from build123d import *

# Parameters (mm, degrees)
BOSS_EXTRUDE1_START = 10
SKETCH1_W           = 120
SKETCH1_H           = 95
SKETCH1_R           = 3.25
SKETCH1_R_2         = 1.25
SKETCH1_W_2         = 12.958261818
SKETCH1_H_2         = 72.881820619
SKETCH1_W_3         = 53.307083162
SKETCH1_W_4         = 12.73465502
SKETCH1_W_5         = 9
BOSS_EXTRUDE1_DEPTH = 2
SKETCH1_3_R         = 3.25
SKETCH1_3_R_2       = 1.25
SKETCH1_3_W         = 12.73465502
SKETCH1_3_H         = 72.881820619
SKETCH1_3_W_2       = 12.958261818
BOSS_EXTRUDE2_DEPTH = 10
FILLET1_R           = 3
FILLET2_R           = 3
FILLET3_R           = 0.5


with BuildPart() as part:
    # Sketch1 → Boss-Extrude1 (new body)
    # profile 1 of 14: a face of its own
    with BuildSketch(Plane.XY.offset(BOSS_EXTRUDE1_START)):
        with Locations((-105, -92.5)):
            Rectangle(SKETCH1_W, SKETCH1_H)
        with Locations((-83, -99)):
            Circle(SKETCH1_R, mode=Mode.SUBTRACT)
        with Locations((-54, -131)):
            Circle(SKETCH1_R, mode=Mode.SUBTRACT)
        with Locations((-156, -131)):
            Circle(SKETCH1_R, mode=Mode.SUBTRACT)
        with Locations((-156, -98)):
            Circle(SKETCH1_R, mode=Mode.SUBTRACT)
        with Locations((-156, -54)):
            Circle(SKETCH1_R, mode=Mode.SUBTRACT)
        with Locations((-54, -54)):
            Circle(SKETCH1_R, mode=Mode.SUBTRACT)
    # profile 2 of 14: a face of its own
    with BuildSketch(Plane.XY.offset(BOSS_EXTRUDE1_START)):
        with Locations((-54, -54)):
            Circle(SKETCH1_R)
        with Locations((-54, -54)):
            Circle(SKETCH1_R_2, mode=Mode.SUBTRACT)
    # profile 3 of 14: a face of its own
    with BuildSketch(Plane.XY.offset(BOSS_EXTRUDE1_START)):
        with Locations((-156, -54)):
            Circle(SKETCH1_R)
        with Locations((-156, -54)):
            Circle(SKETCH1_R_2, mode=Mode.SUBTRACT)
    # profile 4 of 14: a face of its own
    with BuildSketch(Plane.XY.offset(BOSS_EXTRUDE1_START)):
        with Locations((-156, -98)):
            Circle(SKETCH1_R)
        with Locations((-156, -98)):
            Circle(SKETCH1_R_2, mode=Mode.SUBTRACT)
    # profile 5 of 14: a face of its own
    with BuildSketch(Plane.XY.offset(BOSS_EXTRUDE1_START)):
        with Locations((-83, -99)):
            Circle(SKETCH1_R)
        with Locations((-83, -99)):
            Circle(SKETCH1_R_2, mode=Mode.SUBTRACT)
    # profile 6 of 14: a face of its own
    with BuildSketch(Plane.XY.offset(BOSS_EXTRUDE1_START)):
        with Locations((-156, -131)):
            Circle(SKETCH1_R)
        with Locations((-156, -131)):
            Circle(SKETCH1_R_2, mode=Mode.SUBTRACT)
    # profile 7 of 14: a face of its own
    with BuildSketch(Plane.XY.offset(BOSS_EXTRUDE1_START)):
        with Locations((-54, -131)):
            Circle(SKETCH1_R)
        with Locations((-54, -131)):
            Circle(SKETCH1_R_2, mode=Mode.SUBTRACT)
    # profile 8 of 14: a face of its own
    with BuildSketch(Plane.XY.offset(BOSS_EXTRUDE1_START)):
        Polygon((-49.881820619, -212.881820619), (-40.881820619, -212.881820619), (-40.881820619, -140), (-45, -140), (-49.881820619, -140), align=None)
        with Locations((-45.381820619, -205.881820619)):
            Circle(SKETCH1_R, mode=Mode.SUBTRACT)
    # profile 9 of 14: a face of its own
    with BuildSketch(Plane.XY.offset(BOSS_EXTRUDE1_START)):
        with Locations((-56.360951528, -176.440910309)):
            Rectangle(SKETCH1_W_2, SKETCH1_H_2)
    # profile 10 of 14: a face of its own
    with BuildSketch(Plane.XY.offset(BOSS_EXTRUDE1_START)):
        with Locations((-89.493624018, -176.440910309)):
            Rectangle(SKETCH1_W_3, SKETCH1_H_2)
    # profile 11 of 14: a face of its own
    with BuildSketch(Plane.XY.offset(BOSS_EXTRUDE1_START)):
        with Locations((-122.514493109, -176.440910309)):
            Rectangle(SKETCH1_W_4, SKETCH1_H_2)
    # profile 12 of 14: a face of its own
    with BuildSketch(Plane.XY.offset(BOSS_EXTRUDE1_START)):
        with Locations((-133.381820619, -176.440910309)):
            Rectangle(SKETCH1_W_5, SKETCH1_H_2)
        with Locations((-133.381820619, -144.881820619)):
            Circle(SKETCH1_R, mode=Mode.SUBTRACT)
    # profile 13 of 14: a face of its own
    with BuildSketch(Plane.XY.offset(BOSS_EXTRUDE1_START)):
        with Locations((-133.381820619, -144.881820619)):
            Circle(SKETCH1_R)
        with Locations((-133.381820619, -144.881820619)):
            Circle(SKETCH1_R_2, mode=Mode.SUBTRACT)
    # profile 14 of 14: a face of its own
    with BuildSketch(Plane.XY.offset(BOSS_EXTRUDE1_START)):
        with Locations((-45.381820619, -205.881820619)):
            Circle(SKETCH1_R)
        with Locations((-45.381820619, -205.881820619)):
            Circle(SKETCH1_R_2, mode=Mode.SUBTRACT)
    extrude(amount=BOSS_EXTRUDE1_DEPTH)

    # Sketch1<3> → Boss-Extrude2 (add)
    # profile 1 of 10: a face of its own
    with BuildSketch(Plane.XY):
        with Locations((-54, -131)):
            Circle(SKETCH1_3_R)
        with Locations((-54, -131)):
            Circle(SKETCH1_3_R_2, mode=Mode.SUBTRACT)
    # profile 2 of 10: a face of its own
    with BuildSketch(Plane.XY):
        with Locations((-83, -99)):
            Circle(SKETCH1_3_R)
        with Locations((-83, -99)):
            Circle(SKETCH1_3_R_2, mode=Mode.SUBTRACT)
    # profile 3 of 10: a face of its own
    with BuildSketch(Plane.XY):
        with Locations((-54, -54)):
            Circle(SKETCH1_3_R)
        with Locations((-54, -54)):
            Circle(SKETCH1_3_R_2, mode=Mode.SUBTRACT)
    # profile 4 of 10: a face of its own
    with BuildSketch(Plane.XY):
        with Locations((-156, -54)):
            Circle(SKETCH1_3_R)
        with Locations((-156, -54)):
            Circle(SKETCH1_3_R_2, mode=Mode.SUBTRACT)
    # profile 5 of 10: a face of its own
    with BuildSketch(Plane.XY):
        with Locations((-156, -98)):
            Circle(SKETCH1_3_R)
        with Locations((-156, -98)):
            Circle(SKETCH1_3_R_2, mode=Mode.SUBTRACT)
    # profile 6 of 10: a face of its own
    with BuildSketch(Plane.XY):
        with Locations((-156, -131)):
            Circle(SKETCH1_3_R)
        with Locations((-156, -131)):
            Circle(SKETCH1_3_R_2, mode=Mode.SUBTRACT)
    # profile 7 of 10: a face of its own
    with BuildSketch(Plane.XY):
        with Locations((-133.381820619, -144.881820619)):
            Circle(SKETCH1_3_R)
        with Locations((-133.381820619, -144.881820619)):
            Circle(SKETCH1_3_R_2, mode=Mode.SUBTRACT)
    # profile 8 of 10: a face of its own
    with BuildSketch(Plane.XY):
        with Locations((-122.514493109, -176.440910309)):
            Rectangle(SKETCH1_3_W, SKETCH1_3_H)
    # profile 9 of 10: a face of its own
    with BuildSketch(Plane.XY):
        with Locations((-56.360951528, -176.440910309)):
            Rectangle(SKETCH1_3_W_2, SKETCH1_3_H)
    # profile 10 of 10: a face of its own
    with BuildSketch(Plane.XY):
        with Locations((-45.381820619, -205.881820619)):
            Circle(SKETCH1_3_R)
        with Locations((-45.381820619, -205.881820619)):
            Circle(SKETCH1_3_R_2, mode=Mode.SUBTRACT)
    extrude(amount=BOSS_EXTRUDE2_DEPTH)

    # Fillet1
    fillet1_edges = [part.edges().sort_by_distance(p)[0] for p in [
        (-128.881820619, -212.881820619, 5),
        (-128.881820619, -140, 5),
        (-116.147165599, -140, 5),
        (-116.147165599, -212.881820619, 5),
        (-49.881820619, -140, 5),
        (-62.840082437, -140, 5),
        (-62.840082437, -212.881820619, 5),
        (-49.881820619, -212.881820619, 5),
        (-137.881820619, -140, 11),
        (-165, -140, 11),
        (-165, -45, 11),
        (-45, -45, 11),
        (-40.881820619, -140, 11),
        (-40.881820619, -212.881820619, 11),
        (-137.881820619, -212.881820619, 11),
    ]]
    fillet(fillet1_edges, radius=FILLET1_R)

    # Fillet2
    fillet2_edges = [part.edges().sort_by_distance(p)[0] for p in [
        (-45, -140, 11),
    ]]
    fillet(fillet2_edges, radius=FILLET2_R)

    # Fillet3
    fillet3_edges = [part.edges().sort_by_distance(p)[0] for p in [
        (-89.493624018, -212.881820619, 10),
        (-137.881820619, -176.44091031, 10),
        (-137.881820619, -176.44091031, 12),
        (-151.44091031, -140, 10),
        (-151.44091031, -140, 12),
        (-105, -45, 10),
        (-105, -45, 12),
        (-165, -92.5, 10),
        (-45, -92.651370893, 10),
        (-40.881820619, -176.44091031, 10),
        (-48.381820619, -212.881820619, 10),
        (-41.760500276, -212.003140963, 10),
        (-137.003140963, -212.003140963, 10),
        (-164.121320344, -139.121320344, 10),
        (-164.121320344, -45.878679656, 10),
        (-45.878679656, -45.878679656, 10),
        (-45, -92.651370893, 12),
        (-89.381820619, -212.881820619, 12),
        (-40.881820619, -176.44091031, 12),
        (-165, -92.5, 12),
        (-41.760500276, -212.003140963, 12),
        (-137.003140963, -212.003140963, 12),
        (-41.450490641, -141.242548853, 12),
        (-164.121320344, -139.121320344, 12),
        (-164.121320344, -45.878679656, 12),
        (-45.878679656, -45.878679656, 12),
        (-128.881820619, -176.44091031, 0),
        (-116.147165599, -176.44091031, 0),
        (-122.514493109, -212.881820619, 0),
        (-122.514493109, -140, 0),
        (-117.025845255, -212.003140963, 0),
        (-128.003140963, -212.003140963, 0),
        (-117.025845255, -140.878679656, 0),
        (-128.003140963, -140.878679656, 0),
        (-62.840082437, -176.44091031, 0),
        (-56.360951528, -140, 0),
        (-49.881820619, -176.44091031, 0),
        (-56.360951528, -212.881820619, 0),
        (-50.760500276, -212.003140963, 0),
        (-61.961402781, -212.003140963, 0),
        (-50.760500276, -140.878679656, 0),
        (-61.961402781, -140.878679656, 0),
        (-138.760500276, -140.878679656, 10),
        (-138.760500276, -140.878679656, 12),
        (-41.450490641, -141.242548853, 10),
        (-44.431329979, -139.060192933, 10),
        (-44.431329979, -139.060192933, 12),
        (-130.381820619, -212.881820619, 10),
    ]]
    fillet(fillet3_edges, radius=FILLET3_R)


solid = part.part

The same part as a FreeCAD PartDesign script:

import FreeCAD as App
import Part
import Sketcher
from FreeCAD import Vector


def edges_at(feature, points):
    """Names of the edges that pass closest to the given points."""
    edges = feature.Shape.Edges
    near = lambda p: min(range(len(edges)), key=lambda i: edges[i].distToShape(Part.Vertex(*p))[0])
    return sorted({f"Edge{near(p) + 1}" for p in points})

doc = App.newDocument("Part")
params = doc.addObject("Spreadsheet::Sheet", "Params")
for row, (alias, value) in enumerate([
    ("sketch1_diameter", "2.5 mm"),
    ("sketch1_width", "88 mm"),
    ("sketch1_width2", "9 mm"),
    ("sketch1_width3", "120 mm"),
    ("sketch1_height", "95 mm"),
    ("pad1_length", "2 mm"),
    ("sketch2_diameter", "6.5 mm"),
    ("sketch2_diameter2", "2.5 mm"),
    ("pad2_length", "10 mm"),
    ("fillet_radius", "3 mm"),
    ("fillet2_radius", "3 mm"),
    ("fillet3_radius", "0.5 mm"),
], start=1):
    params.set(f"A{row}", alias)
    params.set(f"B{row}", "=" + value)
    params.setAlias(f"B{row}", alias)

body = doc.addObject("PartDesign::Body", "Body")

# Sketch on XY plane
sketch1 = body.newObject("Sketcher::SketchObject", "Sketch")
sketch1.AttachmentSupport = (doc.getObject("XY_Plane"), [""])
sketch1.MapMode = "FlatFace"
sketch1.AttachmentOffset = App.Placement(Vector(0, 0, 10), App.Rotation())
sketch1.addGeometry([
    Part.LineSegment(Vector(-165, -45, 0), Vector(-165, -140, 0)),  # 0
    Part.LineSegment(Vector(-165, -140, 0), Vector(-137.9, -140, 0)),  # 1
    Part.LineSegment(Vector(-137.9, -140, 0), Vector(-137.9, -212.9, 0)),  # 2
    Part.LineSegment(Vector(-137.9, -212.9, 0), Vector(-49.9, -212.9, 0)),  # 3
    Part.LineSegment(Vector(-49.9, -212.9, 0), Vector(-40.9, -212.9, 0)),  # 4
    Part.LineSegment(Vector(-40.9, -212.9, 0), Vector(-40.9, -140, 0)),  # 5
    Part.LineSegment(Vector(-40.9, -140, 0), Vector(-45, -140, 0)),  # 6
    Part.LineSegment(Vector(-45, -140, 0), Vector(-45, -45, 0)),  # 7
    Part.LineSegment(Vector(-45, -45, 0), Vector(-165, -45, 0)),  # 8
    Part.Circle(Vector(-156, -131, 0), Vector(0, 0, 1), 1.2),  # 9
    Part.Circle(Vector(-156, -98, 0), Vector(0, 0, 1), 1.2),  # 10
    Part.Circle(Vector(-54, -131, 0), Vector(0, 0, 1), 1.2),  # 11
    Part.Circle(Vector(-83, -99, 0), Vector(0, 0, 1), 1.2),  # 12
    Part.Circle(Vector(-156, -54, 0), Vector(0, 0, 1), 1.2),  # 13
    Part.Circle(Vector(-54, -54, 0), Vector(0, 0, 1), 1.2),  # 14
    Part.Circle(Vector(-133.4, -144.9, 0), Vector(0, 0, 1), 1.2),  # 15
    Part.Circle(Vector(-45.4, -205.9, 0), Vector(0, 0, 1), 1.2),  # 16
], False)
sketch1.addConstraint([
    Sketcher.Constraint("Coincident", 0, 2, 1, 1),
    Sketcher.Constraint("Coincident", 1, 2, 2, 1),
    Sketcher.Constraint("Coincident", 2, 2, 3, 1),
    Sketcher.Constraint("Coincident", 3, 2, 4, 1),
    Sketcher.Constraint("Coincident", 4, 2, 5, 1),
    Sketcher.Constraint("Coincident", 5, 2, 6, 1),
    Sketcher.Constraint("Coincident", 6, 2, 7, 1),
    Sketcher.Constraint("Coincident", 7, 2, 8, 1),
    Sketcher.Constraint("Coincident", 8, 2, 0, 1),
    Sketcher.Constraint("Vertical", 0),
    Sketcher.Constraint("Horizontal", 1),
    Sketcher.Constraint("Vertical", 2),
    Sketcher.Constraint("Horizontal", 3),
    Sketcher.Constraint("Horizontal", 4),
    Sketcher.Constraint("Vertical", 5),
    Sketcher.Constraint("Horizontal", 6),
    Sketcher.Constraint("Vertical", 7),
    Sketcher.Constraint("Horizontal", 8),
    Sketcher.Constraint("Equal", 9, 10),
    Sketcher.Constraint("Equal", 10, 11),
    Sketcher.Constraint("Equal", 11, 12),
    Sketcher.Constraint("Equal", 12, 13),
    Sketcher.Constraint("Equal", 13, 14),
    Sketcher.Constraint("Equal", 14, 15),
    Sketcher.Constraint("Equal", 15, 16),
    Sketcher.Constraint("Horizontal", 9, 3, 11, 3),
    Sketcher.Constraint("Horizontal", 13, 3, 14, 3),
    Sketcher.Constraint("Horizontal", 1, 2, 5, 2),
    Sketcher.Constraint("Vertical", 9, 3, 10, 3),
    Sketcher.Constraint("Vertical", 10, 3, 13, 3),
    Sketcher.Constraint("Vertical", 11, 3, 14, 3),
    Sketcher.Constraint("Diameter", 9, 2.5),
    Sketcher.Constraint("DistanceX", 3, 1, 3, 2, 88.0),
    Sketcher.Constraint("DistanceX", 4, 1, 4, 2, 9.0),
    Sketcher.Constraint("DistanceX", 8, 2, 8, 1, 120.0),
    Sketcher.Constraint("DistanceY", 0, 2, 0, 1, 95.0),
    Sketcher.Constraint("DistanceX", 9, 3, -1, 1, 156.0),
    Sketcher.Constraint("DistanceY", 9, 3, -1, 1, 131.0),
    Sketcher.Constraint("DistanceY", 10, 3, -1, 1, 98.0),
    Sketcher.Constraint("DistanceX", 11, 3, -1, 1, 54.0),
    Sketcher.Constraint("DistanceX", 12, 3, -1, 1, 83.0),
    Sketcher.Constraint("DistanceY", 12, 3, -1, 1, 99.0),
    Sketcher.Constraint("DistanceY", 13, 3, -1, 1, 54.0),
    Sketcher.Constraint("DistanceX", 0, 2, -1, 1, 165.0),
    Sketcher.Constraint("DistanceY", 0, 2, -1, 1, 140.0),
    Sketcher.Constraint("DistanceX", 15, 3, 16, 3, 88.0),
    Sketcher.Constraint("DistanceY", 16, 3, 15, 3, 61.0),
    Sketcher.Constraint("DistanceY", 2, 2, 15, 3, 68.0),
    Sketcher.Constraint("DistanceX", 1, 2, 15, 3, 4.5),
    Sketcher.Constraint("DistanceX", 1, 1, 1, 2, 27.118179),
    Sketcher.Constraint("DistanceY", 2, 2, 2, 1, 72.881821),
])
sketch1.setExpression("Constraints[31]", "Params.sketch1_diameter")
sketch1.setExpression("Constraints[32]", "Params.sketch1_width")
sketch1.setExpression("Constraints[33]", "Params.sketch1_width2")
sketch1.setExpression("Constraints[34]", "Params.sketch1_width3")
sketch1.setExpression("Constraints[35]", "Params.sketch1_height")
pad1 = body.newObject("PartDesign::Pad", "Pad")
pad1.Profile = sketch1
pad1.setExpression("Length", "Params.pad1_length")

# Sketch on XY plane
sketch2 = body.newObject("Sketcher::SketchObject", "Sketch001")
sketch2.AttachmentSupport = (doc.getObject("XY_Plane"), [""])
sketch2.MapMode = "FlatFace"
sketch2.addGeometry([
    Part.Circle(Vector(-54, -131, 0), Vector(0, 0, 1), 3.2),  # 0
    Part.Circle(Vector(-54, -131, 0), Vector(0, 0, 1), 1.2),  # 1
    Part.Circle(Vector(-83, -99, 0), Vector(0, 0, 1), 3.2),  # 2
    Part.Circle(Vector(-83, -99, 0), Vector(0, 0, 1), 1.2),  # 3
    Part.Circle(Vector(-54, -54, 0), Vector(0, 0, 1), 3.2),  # 4
    Part.Circle(Vector(-54, -54, 0), Vector(0, 0, 1), 1.2),  # 5
    Part.Circle(Vector(-156, -54, 0), Vector(0, 0, 1), 3.2),  # 6
    Part.Circle(Vector(-156, -54, 0), Vector(0, 0, 1), 1.2),  # 7
    Part.Circle(Vector(-156, -98, 0), Vector(0, 0, 1), 3.2),  # 8
    Part.Circle(Vector(-156, -98, 0), Vector(0, 0, 1), 1.2),  # 9
    Part.Circle(Vector(-156, -131, 0), Vector(0, 0, 1), 3.2),  # 10
    Part.Circle(Vector(-156, -131, 0), Vector(0, 0, 1), 1.2),  # 11
    Part.Circle(Vector(-133.4, -144.9, 0), Vector(0, 0, 1), 3.2),  # 12
    Part.Circle(Vector(-133.4, -144.9, 0), Vector(0, 0, 1), 1.2),  # 13
    Part.LineSegment(Vector(-128.9, -140, 0), Vector(-128.9, -212.9, 0)),  # 14
    Part.LineSegment(Vector(-128.9, -212.9, 0), Vector(-116.1, -212.9, 0)),  # 15
    Part.LineSegment(Vector(-116.1, -212.9, 0), Vector(-116.1, -140, 0)),  # 16
    Part.LineSegment(Vector(-116.1, -140, 0), Vector(-128.9, -140, 0)),  # 17
    Part.LineSegment(Vector(-62.8, -140, 0), Vector(-62.8, -212.9, 0)),  # 18
    Part.LineSegment(Vector(-62.8, -212.9, 0), Vector(-49.9, -212.9, 0)),  # 19
    Part.LineSegment(Vector(-49.9, -212.9, 0), Vector(-49.9, -140, 0)),  # 20
    Part.LineSegment(Vector(-49.9, -140, 0), Vector(-62.8, -140, 0)),  # 21
    Part.Circle(Vector(-45.4, -205.9, 0), Vector(0, 0, 1), 3.2),  # 22
    Part.Circle(Vector(-45.4, -205.9, 0), Vector(0, 0, 1), 1.2),  # 23
], False)
sketch2.addConstraint([
    Sketcher.Constraint("Coincident", 14, 2, 15, 1),
    Sketcher.Constraint("Coincident", 15, 2, 16, 1),
    Sketcher.Constraint("Coincident", 16, 2, 17, 1),
    Sketcher.Constraint("Coincident", 17, 2, 14, 1),
    Sketcher.Constraint("Coincident", 18, 2, 19, 1),
    Sketcher.Constraint("Coincident", 19, 2, 20, 1),
    Sketcher.Constraint("Coincident", 20, 2, 21, 1),
    Sketcher.Constraint("Coincident", 21, 2, 18, 1),
    Sketcher.Constraint("Vertical", 14),
    Sketcher.Constraint("Horizontal", 15),
    Sketcher.Constraint("Vertical", 16),
    Sketcher.Constraint("Horizontal", 17),
    Sketcher.Constraint("Vertical", 18),
    Sketcher.Constraint("Horizontal", 19),
    Sketcher.Constraint("Vertical", 20),
    Sketcher.Constraint("Horizontal", 21),
    Sketcher.Constraint("Coincident", 1, 3, 0, 3),
    Sketcher.Constraint("Coincident", 3, 3, 2, 3),
    Sketcher.Constraint("Coincident", 5, 3, 4, 3),
    Sketcher.Constraint("Coincident", 7, 3, 6, 3),
    Sketcher.Constraint("Coincident", 9, 3, 8, 3),
    Sketcher.Constraint("Coincident", 11, 3, 10, 3),
    Sketcher.Constraint("Coincident", 13, 3, 12, 3),
    Sketcher.Constraint("Coincident", 23, 3, 22, 3),
    Sketcher.Constraint("Equal", 0, 2),
    Sketcher.Constraint("Equal", 1, 3),
    Sketcher.Constraint("Equal", 2, 4),
    Sketcher.Constraint("Equal", 3, 5),
    Sketcher.Constraint("Equal", 4, 6),
    Sketcher.Constraint("Equal", 5, 7),
    Sketcher.Constraint("Equal", 6, 8),
    Sketcher.Constraint("Equal", 7, 9),
    Sketcher.Constraint("Equal", 8, 10),
    Sketcher.Constraint("Equal", 9, 11),
    Sketcher.Constraint("Equal", 10, 12),
    Sketcher.Constraint("Equal", 11, 13),
    Sketcher.Constraint("Equal", 12, 22),
    Sketcher.Constraint("Equal", 13, 23),
    Sketcher.Constraint("Horizontal", 5, 3, 6, 3),
    Sketcher.Constraint("Horizontal", 1, 3, 10, 3),
    Sketcher.Constraint("Horizontal", 15, 2, 18, 2),
    Sketcher.Constraint("Horizontal", 17, 2, 20, 2),
    Sketcher.Constraint("Vertical", 1, 3, 4, 3),
    Sketcher.Constraint("Vertical", 7, 3, 8, 3),
    Sketcher.Constraint("Vertical", 9, 3, 10, 3),
    Sketcher.Constraint("Diameter", 0, 6.5),
    Sketcher.Constraint("Diameter", 1, 2.5),
    Sketcher.Constraint("DistanceX", 0, 3, -1, 1, 54.0),
    Sketcher.Constraint("DistanceY", 0, 3, -1, 1, 131.0),
    Sketcher.Constraint("DistanceX", 2, 3, -1, 1, 83.0),
    Sketcher.Constraint("DistanceY", 2, 3, -1, 1, 99.0),
    Sketcher.Constraint("DistanceY", 4, 3, -1, 1, 54.0),
    Sketcher.Constraint("DistanceX", 6, 3, -1, 1, 156.0),
    Sketcher.Constraint("DistanceY", 8, 3, -1, 1, 98.0),
    Sketcher.Constraint("DistanceY", 16, 2, -1, 1, 140.0),
    Sketcher.Constraint("DistanceX", 12, 3, 22, 3, 88.0),
    Sketcher.Constraint("DistanceY", 22, 3, 12, 3, 61.0),
    Sketcher.Constraint("DistanceY", 14, 2, 12, 3, 68.0),
    Sketcher.Constraint("DistanceX", 14, 2, 19, 2, 79.0),
    Sketcher.Constraint("DistanceX", 12, 3, 14, 2, 4.5),
    Sketcher.Constraint("DistanceX", 19, 1, 19, 2, 12.958262),
    Sketcher.Constraint("DistanceY", 14, 2, 14, 1, 72.881821),
    Sketcher.Constraint("DistanceX", 15, 1, 15, 2, 12.734655),
    Sketcher.Constraint("DistanceX", 12, 3, -1, 1, 133.381821),
])
sketch2.setExpression("Constraints[45]", "Params.sketch2_diameter")
sketch2.setExpression("Constraints[46]", "Params.sketch2_diameter2")
pad2 = body.newObject("PartDesign::Pad", "Pad001")
pad2.Profile = sketch2
pad2.setExpression("Length", "Params.pad2_length")
doc.recompute()

fillet = body.newObject("PartDesign::Fillet", "Fillet")
fillet.Base = (pad2, edges_at(pad2, [
    (-128.882, -212.882, 5),
    (-128.882, -140, 5),
    (-116.147, -140, 5),
    (-116.147, -212.882, 5),
    (-49.882, -140, 5),
    (-62.84, -140, 5),
    (-62.84, -212.882, 5),
    (-49.882, -212.882, 5),
    (-137.882, -140, 11),
    (-165, -140, 11),
    (-165, -45, 11),
    (-45, -45, 11),
    (-40.882, -140, 11),
    (-40.882, -212.882, 11),
    (-137.882, -212.882, 11),
]))
fillet.setExpression("Radius", "Params.fillet_radius")
doc.recompute()

fillet2 = body.newObject("PartDesign::Fillet", "Fillet001")
fillet2.Base = (fillet, edges_at(fillet, [(-45, -140, 11)]))
fillet2.setExpression("Radius", "Params.fillet2_radius")
doc.recompute()

fillet3 = body.newObject("PartDesign::Fillet", "Fillet002")
fillet3.Base = (fillet2, edges_at(fillet2, [
    (-89.494, -212.882, 10),
    (-137.882, -176.441, 10),
    (-137.882, -176.441, 12),
    (-151.441, -140, 10),
    (-151.441, -140, 12),
    (-105, -45, 10),
    (-105, -45, 12),
    (-165, -92.5, 10),
    (-45, -92.651, 10),
    (-40.882, -176.441, 10),
    (-46.882, -212.882, 10),
    (-41.761, -212.003, 10),
    (-137.003, -212.003, 10),
    (-164.121, -139.121, 10),
    (-164.121, -45.879, 10),
    (-45.879, -45.879, 10),
    (-45, -92.651, 12),
    (-92.382, -212.882, 12),
    (-40.882, -176.441, 12),
    (-165, -92.5, 12),
    (-41.761, -212.003, 12),
    (-137.003, -212.003, 12),
    (-41.45, -141.243, 12),
    (-164.121, -139.121, 12),
    (-164.121, -45.879, 12),
    (-45.879, -45.879, 12),
    (-128.882, -176.441, 0),
    (-116.147, -176.441, 0),
    (-122.514, -212.882, 0),
    (-122.514, -140, 0),
    (-117.026, -212.003, 0),
    (-128.003, -212.003, 0),
    (-117.026, -140.879, 0),
    (-128.003, -140.879, 0),
    (-62.84, -176.441, 0),
    (-56.361, -140, 0),
    (-49.882, -176.441, 0),
    (-56.361, -212.882, 0),
    (-50.761, -212.003, 0),
    (-61.961, -212.003, 0),
    (-50.761, -140.879, 0),
    (-61.961, -140.879, 0),
    (-138.761, -140.879, 10),
    (-138.761, -140.879, 12),
    (-41.45, -141.243, 10),
    (-44.431, -139.06, 10),
    (-44.431, -139.06, 12),
    (-131.882, -212.882, 10),
]))
fillet3.setExpression("Radius", "Params.fillet3_radius")

doc.recompute()
